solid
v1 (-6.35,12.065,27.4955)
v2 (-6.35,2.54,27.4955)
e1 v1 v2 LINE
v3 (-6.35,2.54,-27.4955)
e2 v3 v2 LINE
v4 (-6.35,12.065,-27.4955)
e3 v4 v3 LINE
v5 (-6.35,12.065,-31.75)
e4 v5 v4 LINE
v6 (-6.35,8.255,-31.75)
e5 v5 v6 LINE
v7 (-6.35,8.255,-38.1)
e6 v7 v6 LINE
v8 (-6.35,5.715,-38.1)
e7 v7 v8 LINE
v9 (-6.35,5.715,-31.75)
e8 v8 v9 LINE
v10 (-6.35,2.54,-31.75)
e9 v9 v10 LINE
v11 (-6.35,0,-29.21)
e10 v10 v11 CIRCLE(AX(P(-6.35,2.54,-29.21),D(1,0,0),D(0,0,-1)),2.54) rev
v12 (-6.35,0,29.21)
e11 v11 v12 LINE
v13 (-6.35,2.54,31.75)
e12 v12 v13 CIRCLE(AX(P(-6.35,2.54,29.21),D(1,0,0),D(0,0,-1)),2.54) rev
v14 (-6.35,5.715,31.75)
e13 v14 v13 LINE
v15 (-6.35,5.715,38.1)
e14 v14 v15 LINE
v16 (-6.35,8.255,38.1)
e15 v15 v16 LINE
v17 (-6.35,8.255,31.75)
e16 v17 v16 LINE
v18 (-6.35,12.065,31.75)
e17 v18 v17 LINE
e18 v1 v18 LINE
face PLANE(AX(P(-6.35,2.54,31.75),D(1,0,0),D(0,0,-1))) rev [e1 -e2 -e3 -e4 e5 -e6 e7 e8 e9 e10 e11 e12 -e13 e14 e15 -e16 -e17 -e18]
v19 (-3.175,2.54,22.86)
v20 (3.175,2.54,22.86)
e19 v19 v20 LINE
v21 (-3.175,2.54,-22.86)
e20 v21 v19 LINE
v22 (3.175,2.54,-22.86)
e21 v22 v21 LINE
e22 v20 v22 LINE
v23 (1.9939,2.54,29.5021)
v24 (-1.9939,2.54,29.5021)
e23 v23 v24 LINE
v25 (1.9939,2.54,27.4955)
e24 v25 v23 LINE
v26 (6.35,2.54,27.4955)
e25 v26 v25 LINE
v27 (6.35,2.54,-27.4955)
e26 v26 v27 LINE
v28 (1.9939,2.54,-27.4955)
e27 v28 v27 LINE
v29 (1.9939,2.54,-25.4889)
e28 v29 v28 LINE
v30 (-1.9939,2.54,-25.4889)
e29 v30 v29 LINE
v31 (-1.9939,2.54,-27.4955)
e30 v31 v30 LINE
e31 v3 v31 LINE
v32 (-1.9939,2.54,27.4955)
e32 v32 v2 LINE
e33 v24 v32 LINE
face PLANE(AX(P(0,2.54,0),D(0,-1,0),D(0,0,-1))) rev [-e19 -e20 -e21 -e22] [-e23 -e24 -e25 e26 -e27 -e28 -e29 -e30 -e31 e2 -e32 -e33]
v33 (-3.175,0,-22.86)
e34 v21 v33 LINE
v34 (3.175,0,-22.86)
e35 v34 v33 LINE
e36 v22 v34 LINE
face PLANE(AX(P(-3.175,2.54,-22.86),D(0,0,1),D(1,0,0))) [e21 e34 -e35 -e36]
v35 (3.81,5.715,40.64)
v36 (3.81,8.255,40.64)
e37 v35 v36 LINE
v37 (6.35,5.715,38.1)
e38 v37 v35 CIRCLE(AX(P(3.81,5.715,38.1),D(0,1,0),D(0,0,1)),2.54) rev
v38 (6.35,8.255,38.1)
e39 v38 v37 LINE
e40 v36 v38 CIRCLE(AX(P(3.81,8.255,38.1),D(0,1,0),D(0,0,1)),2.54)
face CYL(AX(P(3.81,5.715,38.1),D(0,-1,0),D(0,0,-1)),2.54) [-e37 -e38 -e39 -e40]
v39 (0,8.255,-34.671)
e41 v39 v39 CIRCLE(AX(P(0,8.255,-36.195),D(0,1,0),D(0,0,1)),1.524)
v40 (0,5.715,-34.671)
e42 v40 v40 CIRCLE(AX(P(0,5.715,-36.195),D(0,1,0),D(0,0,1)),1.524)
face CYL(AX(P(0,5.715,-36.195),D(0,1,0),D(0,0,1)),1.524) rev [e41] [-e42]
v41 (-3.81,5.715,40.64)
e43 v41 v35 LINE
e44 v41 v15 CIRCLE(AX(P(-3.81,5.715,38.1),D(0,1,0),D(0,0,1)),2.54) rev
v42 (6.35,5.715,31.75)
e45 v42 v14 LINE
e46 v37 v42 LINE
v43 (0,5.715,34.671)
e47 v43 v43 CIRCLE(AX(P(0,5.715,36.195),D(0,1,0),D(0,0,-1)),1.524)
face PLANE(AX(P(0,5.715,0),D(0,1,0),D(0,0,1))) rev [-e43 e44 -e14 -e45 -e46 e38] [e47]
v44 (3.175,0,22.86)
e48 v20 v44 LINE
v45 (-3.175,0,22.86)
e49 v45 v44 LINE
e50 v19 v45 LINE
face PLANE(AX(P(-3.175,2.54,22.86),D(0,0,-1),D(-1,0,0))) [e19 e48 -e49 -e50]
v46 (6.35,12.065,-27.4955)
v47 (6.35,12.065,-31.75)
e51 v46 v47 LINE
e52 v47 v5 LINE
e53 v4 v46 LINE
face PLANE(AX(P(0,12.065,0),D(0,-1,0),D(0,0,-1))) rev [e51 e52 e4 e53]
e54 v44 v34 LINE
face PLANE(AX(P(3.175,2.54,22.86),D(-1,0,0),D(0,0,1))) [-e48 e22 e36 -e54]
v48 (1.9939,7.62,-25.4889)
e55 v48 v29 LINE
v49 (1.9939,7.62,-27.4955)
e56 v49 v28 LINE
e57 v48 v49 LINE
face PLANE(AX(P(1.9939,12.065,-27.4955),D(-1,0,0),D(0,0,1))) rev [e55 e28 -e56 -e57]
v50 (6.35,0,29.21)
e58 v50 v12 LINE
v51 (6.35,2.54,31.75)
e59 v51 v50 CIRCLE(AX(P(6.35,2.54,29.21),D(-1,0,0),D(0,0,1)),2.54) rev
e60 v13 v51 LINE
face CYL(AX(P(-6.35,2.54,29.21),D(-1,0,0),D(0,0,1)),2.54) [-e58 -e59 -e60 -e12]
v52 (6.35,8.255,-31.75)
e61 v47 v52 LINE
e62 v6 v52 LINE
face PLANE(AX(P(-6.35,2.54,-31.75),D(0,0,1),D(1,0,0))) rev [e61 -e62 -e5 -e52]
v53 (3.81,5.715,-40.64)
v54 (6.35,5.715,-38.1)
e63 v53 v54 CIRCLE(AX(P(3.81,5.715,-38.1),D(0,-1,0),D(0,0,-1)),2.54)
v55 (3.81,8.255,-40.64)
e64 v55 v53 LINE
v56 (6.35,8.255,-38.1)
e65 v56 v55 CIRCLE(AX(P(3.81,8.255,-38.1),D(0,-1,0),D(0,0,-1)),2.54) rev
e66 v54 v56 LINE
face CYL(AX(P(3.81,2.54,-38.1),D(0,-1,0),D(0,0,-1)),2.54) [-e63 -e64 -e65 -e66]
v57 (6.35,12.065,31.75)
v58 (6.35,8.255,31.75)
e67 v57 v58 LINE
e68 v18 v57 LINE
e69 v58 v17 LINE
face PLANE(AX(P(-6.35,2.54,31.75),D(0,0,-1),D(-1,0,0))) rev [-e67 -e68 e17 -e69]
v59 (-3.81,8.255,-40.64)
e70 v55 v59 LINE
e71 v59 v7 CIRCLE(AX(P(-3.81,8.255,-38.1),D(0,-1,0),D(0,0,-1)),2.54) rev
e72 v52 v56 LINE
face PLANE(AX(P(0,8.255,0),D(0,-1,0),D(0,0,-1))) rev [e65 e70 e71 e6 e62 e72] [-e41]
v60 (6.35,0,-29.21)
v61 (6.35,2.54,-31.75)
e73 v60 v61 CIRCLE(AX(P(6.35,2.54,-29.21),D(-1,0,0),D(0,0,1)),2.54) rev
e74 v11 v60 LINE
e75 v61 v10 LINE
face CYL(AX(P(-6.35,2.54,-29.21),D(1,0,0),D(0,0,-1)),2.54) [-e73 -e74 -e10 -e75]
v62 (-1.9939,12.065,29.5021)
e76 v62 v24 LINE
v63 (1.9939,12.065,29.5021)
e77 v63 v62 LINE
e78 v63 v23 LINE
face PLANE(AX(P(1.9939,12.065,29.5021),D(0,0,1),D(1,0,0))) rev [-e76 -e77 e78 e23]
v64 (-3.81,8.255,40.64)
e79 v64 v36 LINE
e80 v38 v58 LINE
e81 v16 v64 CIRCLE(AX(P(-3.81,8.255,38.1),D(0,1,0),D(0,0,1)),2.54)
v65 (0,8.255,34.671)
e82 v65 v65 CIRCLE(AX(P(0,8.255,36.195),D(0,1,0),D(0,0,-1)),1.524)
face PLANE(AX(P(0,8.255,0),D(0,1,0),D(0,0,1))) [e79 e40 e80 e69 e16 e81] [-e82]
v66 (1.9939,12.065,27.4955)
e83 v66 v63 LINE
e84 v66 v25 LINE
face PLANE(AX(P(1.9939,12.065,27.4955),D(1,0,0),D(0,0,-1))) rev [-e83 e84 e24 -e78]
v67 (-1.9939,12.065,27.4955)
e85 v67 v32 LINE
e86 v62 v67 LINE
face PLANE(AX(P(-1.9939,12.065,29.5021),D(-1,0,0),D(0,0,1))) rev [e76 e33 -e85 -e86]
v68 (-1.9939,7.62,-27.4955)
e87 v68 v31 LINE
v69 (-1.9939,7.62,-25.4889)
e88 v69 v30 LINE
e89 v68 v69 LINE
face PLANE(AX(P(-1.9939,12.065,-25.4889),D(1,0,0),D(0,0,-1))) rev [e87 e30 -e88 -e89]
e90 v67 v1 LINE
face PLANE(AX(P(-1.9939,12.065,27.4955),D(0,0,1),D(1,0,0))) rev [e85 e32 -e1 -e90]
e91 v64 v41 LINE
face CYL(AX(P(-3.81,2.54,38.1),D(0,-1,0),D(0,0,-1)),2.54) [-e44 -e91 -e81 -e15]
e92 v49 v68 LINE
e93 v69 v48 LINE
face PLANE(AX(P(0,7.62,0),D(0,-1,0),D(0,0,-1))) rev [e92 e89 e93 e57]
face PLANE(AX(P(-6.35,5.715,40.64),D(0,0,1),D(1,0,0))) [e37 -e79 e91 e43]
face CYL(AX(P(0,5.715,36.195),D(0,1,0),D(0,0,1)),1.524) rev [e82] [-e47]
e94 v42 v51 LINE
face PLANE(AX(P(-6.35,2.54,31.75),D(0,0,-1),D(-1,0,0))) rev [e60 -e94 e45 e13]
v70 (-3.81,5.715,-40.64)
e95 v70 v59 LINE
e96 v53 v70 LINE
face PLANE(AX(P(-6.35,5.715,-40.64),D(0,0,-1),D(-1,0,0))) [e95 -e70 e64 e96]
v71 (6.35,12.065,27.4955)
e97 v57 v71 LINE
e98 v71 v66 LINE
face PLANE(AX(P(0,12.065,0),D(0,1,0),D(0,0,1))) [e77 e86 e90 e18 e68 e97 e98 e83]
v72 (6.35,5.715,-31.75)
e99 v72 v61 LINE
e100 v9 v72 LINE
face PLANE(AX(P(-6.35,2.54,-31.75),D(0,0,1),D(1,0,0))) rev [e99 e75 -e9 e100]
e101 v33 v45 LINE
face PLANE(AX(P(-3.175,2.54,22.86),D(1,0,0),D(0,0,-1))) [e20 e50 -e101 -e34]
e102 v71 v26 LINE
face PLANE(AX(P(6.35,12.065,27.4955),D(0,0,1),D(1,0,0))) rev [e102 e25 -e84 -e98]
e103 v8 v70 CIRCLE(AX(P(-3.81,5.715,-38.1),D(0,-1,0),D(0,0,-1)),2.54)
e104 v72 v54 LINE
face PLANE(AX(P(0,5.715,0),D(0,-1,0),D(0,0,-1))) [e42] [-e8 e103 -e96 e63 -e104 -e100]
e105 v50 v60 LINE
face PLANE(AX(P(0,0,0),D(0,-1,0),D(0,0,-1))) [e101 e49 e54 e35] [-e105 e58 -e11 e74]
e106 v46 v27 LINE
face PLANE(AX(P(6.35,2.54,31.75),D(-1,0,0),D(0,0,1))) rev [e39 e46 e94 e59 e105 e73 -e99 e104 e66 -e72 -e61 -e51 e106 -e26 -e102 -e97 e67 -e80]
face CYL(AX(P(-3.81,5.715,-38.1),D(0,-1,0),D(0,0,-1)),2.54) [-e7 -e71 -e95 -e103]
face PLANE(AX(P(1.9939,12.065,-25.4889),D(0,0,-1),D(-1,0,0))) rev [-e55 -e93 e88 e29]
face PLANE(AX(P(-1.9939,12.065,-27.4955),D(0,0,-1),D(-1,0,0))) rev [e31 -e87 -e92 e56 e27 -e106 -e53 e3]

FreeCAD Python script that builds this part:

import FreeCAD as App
import Part
import Sketcher
from FreeCAD import Vector
Q = App.Units.Quantity


def edges_at(feature, points):
    """Names of the edges that pass closest to the given points."""
    edges = feature.Shape.Edges
    near = lambda p: min(range(len(edges)), key=lambda i: edges[i].distToShape(Part.Vertex(*p))[0])
    return sorted({f"Edge{near(p) + 1}" for p in points})

doc = App.newDocument("Part")
params = doc.addObject("Spreadsheet::Sheet", "Params")
for row, (alias, value) in enumerate([
    ("sketch1_width", "0.5 in"),
    ("sketch1_height", "2.5 in"),
    ("sketch1_height2", "1.8 in"),
    ("sketch1_width2", "0.25 in"),
    ("pad1_length", "0.1 in"),
    ("sketch2_width", "0.5 in"),
    ("sketch2_width2", "0.157 in"),
    ("sketch2_height", "0.079 in"),
    ("pad2_length", "0.375 in"),
    ("sketch3_width", "0.157 in"),
    ("sketch3_height", "0.079 in"),
    ("pocket1_length", "0.175 in"),
    ("sketch4_diameter", "0.12 in"),
    ("sketch4_width", "0.5 in"),
    ("sketch4_height", "0.35 in"),
    ("pad3_length", "0.1 in"),
    ("fillet_radius", "0.1 in"),
], start=1):
    params.set(f"A{row}", alias)
    params.set(f"B{row}", "=" + value)
    params.setAlias(f"B{row}", alias)

body = doc.addObject("PartDesign::Body", "Body")

sketch1 = doc.addObject("Sketcher::SketchObject", "Sketch")
body.addObject(sketch1)
sketch1.AttachmentSupport = (doc.XZ_Plane, [""])
sketch1.MapMode = "FlatFace"
sketch1.addGeometry([
    Part.LineSegment(Vector(-6, -32, 0), Vector(-6, 32, 0)),
    Part.LineSegment(Vector(-6, 32, 0), Vector(6, 32, 0)),
    Part.LineSegment(Vector(6, 32, 0), Vector(6, -32, 0)),
    Part.LineSegment(Vector(6, -32, 0), Vector(-6, -32, 0)),
    Part.LineSegment(Vector(3, 23, 0), Vector(-3, 23, 0)),
    Part.LineSegment(Vector(-3, 23, 0), Vector(-3, -23, 0)),
    Part.LineSegment(Vector(-3, -23, 0), Vector(3, -23, 0)),
    Part.LineSegment(Vector(3, -23, 0), Vector(3, 23, 0)),
], False)
sketch1.addConstraint([
    Sketcher.Constraint("Coincident", 0, 2, 1, 1),
    Sketcher.Constraint("Coincident", 1, 2, 2, 1),
    Sketcher.Constraint("Coincident", 2, 2, 3, 1),
    Sketcher.Constraint("Coincident", 3, 2, 0, 1),
    Sketcher.Constraint("Coincident", 4, 2, 5, 1),
    Sketcher.Constraint("Coincident", 5, 2, 6, 1),
    Sketcher.Constraint("Coincident", 6, 2, 7, 1),
    Sketcher.Constraint("Coincident", 7, 2, 4, 1),
    Sketcher.Constraint("Vertical", 0),
    Sketcher.Constraint("Horizontal", 1),
    Sketcher.Constraint("Vertical", 2),
    Sketcher.Constraint("Horizontal", 3),
    Sketcher.Constraint("Horizontal", 4),
    Sketcher.Constraint("Vertical", 5),
    Sketcher.Constraint("Horizontal", 6),
    Sketcher.Constraint("Vertical", 7),
    Sketcher.Constraint("Symmetric", 0, 2, 2, 2, -1, 1),
    Sketcher.Constraint("Symmetric", 4, 2, 6, 2, -1, 1),
    Sketcher.Constraint("DistanceX", 1, 1, 1, 2, Q("0.5 in")),
    Sketcher.Constraint("DistanceY", 0, 1, 0, 2, Q("2.5 in")),
    Sketcher.Constraint("DistanceY", 5, 2, 5, 1, Q("1.8 in")),
    Sketcher.Constraint("DistanceX", 4, 2, 4, 1, Q("0.25 in")),
])
sketch1.setExpression("Constraints[18]", "Params.sketch1_width")
sketch1.setExpression("Constraints[19]", "Params.sketch1_height")
sketch1.setExpression("Constraints[20]", "Params.sketch1_height2")
sketch1.setExpression("Constraints[21]", "Params.sketch1_width2")
pad1 = doc.addObject("PartDesign::Pad", "Pad")
body.addObject(pad1)
pad1.Profile = sketch1
pad1.setExpression("Length", "Params.pad1_length")
pad1.Reversed = True

sketch2 = doc.addObject("Sketcher::SketchObject", "Sketch001")
body.addObject(sketch2)
sketch2.AttachmentSupport = (doc.XZ_Plane, [""])
sketch2.MapMode = "FlatFace"
sketch2.AttachmentOffset = App.Placement(Vector(0, 0, -0.1 * 25.4), App.Rotation())
sketch2.addGeometry([
    Part.LineSegment(Vector(6.3, -31.8, 0), Vector(-6.3, -31.8, 0)),
    Part.LineSegment(Vector(-6.3, -31.8, 0), Vector(-6.3, -27.5, 0)),
    Part.LineSegment(Vector(-6.3, -27.5, 0), Vector(-2, -27.5, 0)),
    Part.LineSegment(Vector(-2, -27.5, 0), Vector(-2, -25.5, 0)),
    Part.LineSegment(Vector(-2, -25.5, 0), Vector(2, -25.5, 0)),
    Part.LineSegment(Vector(2, -25.5, 0), Vector(2, -27.5, 0)),
    Part.LineSegment(Vector(2, -27.5, 0), Vector(6.3, -27.5, 0)),
    Part.LineSegment(Vector(6.3, -27.5, 0), Vector(6.3, -31.8, 0)),
    Part.LineSegment(Vector(-6.3, 27.5, 0), Vector(-6.3, 31.8, 0)),
    Part.LineSegment(Vector(-6.3, 31.8, 0), Vector(6.3, 31.8, 0)),
    Part.LineSegment(Vector(6.3, 31.8, 0), Vector(6.3, 27.5, 0)),
    Part.LineSegment(Vector(6.3, 27.5, 0), Vector(2, 27.5, 0)),
    Part.LineSegment(Vector(2, 27.5, 0), Vector(2, 29.5, 0)),
    Part.LineSegment(Vector(2, 29.5, 0), Vector(-2, 29.5, 0)),
    Part.LineSegment(Vector(-2, 29.5, 0), Vector(-2, 27.5, 0)),
    Part.LineSegment(Vector(-2, 27.5, 0), Vector(-6.3, 27.5, 0)),
], False)
sketch2.addConstraint([
    Sketcher.Constraint("Coincident", 0, 2, 1, 1),
    Sketcher.Constraint("Coincident", 1, 2, 2, 1),
    Sketcher.Constraint("Coincident", 2, 2, 3, 1),
    Sketcher.Constraint("Coincident", 3, 2, 4, 1),
    Sketcher.Constraint("Coincident", 4, 2, 5, 1),
    Sketcher.Constraint("Coincident", 5, 2, 6, 1),
    Sketcher.Constraint("Coincident", 6, 2, 7, 1),
    Sketcher.Constraint("Coincident", 7, 2, 0, 1),
    Sketcher.Constraint("Coincident", 8, 2, 9, 1),
    Sketcher.Constraint("Coincident", 9, 2, 10, 1),
    Sketcher.Constraint("Coincident", 10, 2, 11, 1),
    Sketcher.Constraint("Coincident", 11, 2, 12, 1),
    Sketcher.Constraint("Coincident", 12, 2, 13, 1),
    Sketcher.Constraint("Coincident", 13, 2, 14, 1),
    Sketcher.Constraint("Coincident", 14, 2, 15, 1),
    Sketcher.Constraint("Coincident", 15, 2, 8, 1),
    Sketcher.Constraint("Horizontal", 0),
    Sketcher.Constraint("Vertical", 1),
    Sketcher.Constraint("Horizontal", 2),
    Sketcher.Constraint("Vertical", 3),
    Sketcher.Constraint("Horizontal", 4),
    Sketcher.Constraint("Vertical", 5),
    Sketcher.Constraint("Horizontal", 6),
    Sketcher.Constraint("Vertical", 7),
    Sketcher.Constraint("Vertical", 8),
    Sketcher.Constraint("Horizontal", 9),
    Sketcher.Constraint("Vertical", 10),
    Sketcher.Constraint("Horizontal", 11),
    Sketcher.Constraint("Vertical", 12),
    Sketcher.Constraint("Horizontal", 13),
    Sketcher.Constraint("Vertical", 14),
    Sketcher.Constraint("Horizontal", 15),
    Sketcher.Constraint("Symmetric", 7, 2, 8, 2, -1, 1),
    Sketcher.Constraint("Symmetric", 1, 2, 10, 2, -1, 1),
    Sketcher.Constraint("Symmetric", 5, 2, 14, 2, -1, 1),
    Sketcher.Constraint("Symmetric", 2, 2, 5, 2, -2),
    Sketcher.Constraint("Vertical", 1, 2, 8, 2),
    Sketcher.Constraint("Vertical", 5, 2, 11, 2),
    Sketcher.Constraint("Equal", 5, 12),
    Sketcher.Constraint("DistanceX", 0, 2, 0, 1, Q("0.5 in")),
    Sketcher.Constraint("DistanceX", 4, 1, 4, 2, Q("0.157 in")),
    Sketcher.Constraint("DistanceY", 3, 1, 3, 2, Q("0.079 in")),
    Sketcher.Constraint("DistanceY", 0, 2, -1, 1, Q("1.25 in")),
    Sketcher.Constraint("DistanceY", 1, 1, 1, 2, Q("0.1675 in")),
])
sketch2.setExpression("Constraints[39]", "Params.sketch2_width")
sketch2.setExpression("Constraints[40]", "Params.sketch2_width2")
sketch2.setExpression("Constraints[41]", "Params.sketch2_height")
pad2 = doc.addObject("PartDesign::Pad", "Pad001")
body.addObject(pad2)
pad2.Profile = sketch2
pad2.setExpression("Length", "Params.pad2_length")
pad2.Reversed = True

sketch3 = doc.addObject("Sketcher::SketchObject", "Sketch002")
body.addObject(sketch3)
sketch3.AttachmentSupport = (doc.XZ_Plane, [""])
sketch3.MapMode = "FlatFace"
sketch3.AttachmentOffset = App.Placement(Vector(0, 0, -0.475 * 25.4), App.Rotation())
sketch3.addGeometry([
    Part.LineSegment(Vector(-2, -27.5, 0), Vector(-2, -25.5, 0)),
    Part.LineSegment(Vector(-2, -25.5, 0), Vector(2, -25.5, 0)),
    Part.LineSegment(Vector(2, -25.5, 0), Vector(2, -27.5, 0)),
    Part.LineSegment(Vector(2, -27.5, 0), Vector(-2, -27.5, 0)),
], False)
sketch3.addConstraint([
    Sketcher.Constraint("Coincident", 0, 2, 1, 1),
    Sketcher.Constraint("Coincident", 1, 2, 2, 1),
    Sketcher.Constraint("Coincident", 2, 2, 3, 1),
    Sketcher.Constraint("Coincident", 3, 2, 0, 1),
    Sketcher.Constraint("Vertical", 0),
    Sketcher.Constraint("Horizontal", 1),
    Sketcher.Constraint("Vertical", 2),
    Sketcher.Constraint("Horizontal", 3),
    Sketcher.Constraint("DistanceX", 1, 1, 1, 2, Q("0.157 in")),
    Sketcher.Constraint("DistanceY", 0, 1, 0, 2, Q("0.079 in")),
    Sketcher.Constraint("DistanceX", 0, 2, -1, 1, Q("0.0785 in")),
    Sketcher.Constraint("DistanceY", 0, 2, -1, 1, Q("1.0035 in")),
])
sketch3.setExpression("Constraints[8]", "Params.sketch3_width")
sketch3.setExpression("Constraints[9]", "Params.sketch3_height")
pocket1 = doc.addObject("PartDesign::Pocket", "Pocket")
body.addObject(pocket1)
pocket1.Profile = sketch3
pocket1.setExpression("Length", "Params.pocket1_length")
pocket1.Reversed = True

sketch4 = doc.addObject("Sketcher::SketchObject", "Sketch003")
body.addObject(sketch4)
sketch4.AttachmentSupport = (doc.XZ_Plane, [""])
sketch4.MapMode = "FlatFace"
sketch4.AttachmentOffset = App.Placement(Vector(0, 0, -0.325 * 25.4), App.Rotation())
sketch4.addGeometry([
    Part.LineSegment(Vector(-6.3, -40.6, 0), Vector(-6.3, -31.8, 0)),
    Part.LineSegment(Vector(-6.3, -31.8, 0), Vector(6.3, -31.8, 0)),
    Part.LineSegment(Vector(6.3, -31.8, 0), Vector(6.3, -40.6, 0)),
    Part.LineSegment(Vector(6.3, -40.6, 0), Vector(-6.3, -40.6, 0)),
    Part.Circle(Vector(0, -36.2, 0), Vector(0, 0, 1), 1.5),
    Part.LineSegment(Vector(-6.3, 31.8, 0), Vector(-6.3, 40.6, 0)),
    Part.LineSegment(Vector(-6.3, 40.6, 0), Vector(6.3, 40.6, 0)),
    Part.LineSegment(Vector(6.3, 40.6, 0), Vector(6.3, 31.8, 0)),
    Part.LineSegment(Vector(6.3, 31.8, 0), Vector(-6.3, 31.8, 0)),
    Part.Circle(Vector(0, 36.2, 0), Vector(0, 0, 1), 1.5),
], False)
sketch4.addConstraint([
    Sketcher.Constraint("Coincident", 0, 2, 1, 1),
    Sketcher.Constraint("Coincident", 1, 2, 2, 1),
    Sketcher.Constraint("Coincident", 2, 2, 3, 1),
    Sketcher.Constraint("Coincident", 3, 2, 0, 1),
    Sketcher.Constraint("Coincident", 5, 2, 6, 1),
    Sketcher.Constraint("Coincident", 6, 2, 7, 1),
    Sketcher.Constraint("Coincident", 7, 2, 8, 1),
    Sketcher.Constraint("Coincident", 8, 2, 5, 1),
    Sketcher.Constraint("Vertical", 0),
    Sketcher.Constraint("Horizontal", 1),
    Sketcher.Constraint("Vertical", 2),
    Sketcher.Constraint("Horizontal", 3),
    Sketcher.Constraint("Vertical", 5),
    Sketcher.Constraint("Horizontal", 6),
    Sketcher.Constraint("Vertical", 7),
    Sketcher.Constraint("Horizontal", 8),
    Sketcher.Constraint("Equal", 4, 9),
    Sketcher.Constraint("Symmetric", 4, 3, 9, 3, -1, 1),
    Sketcher.Constraint("Symmetric", 2, 2, 5, 2, -1, 1),
    Sketcher.Constraint("Symmetric", 0, 2, 7, 2, -1, 1),
    Sketcher.Constraint("PointOnObject", 4, 3, -2),
    Sketcher.Constraint("Vertical", 3, 2, 5, 2),
    Sketcher.Constraint("Diameter", 4, Q("0.12 in")),
    Sketcher.Constraint("DistanceX", 1, 1, 1, 2, Q("0.5 in")),
    Sketcher.Constraint("DistanceY", 0, 1, 0, 2, Q("0.35 in")),
    Sketcher.Constraint("DistanceY", 2, 2, -1, 1, Q("1.6 in")),
    Sketcher.Constraint("DistanceY", 4, 3, 9, 3, Q("2.85 in")),
])
sketch4.setExpression("Constraints[22]", "Params.sketch4_diameter")
sketch4.setExpression("Constraints[23]", "Params.sketch4_width")
sketch4.setExpression("Constraints[24]", "Params.sketch4_height")
pad3 = doc.addObject("PartDesign::Pad", "Pad002")
body.addObject(pad3)
pad3.Profile = sketch4
pad3.setExpression("Length", "Params.pad3_length")
doc.recompute()

fillet = doc.addObject("PartDesign::Fillet", "Fillet")
body.addObject(fillet)
fillet.Base = (pad3, edges_at(pad3, [
    (6.35, 6.985, 40.64),
    (-6.35, 6.985, 40.64),
    (0, 0, 31.75),
    (0, 0, -31.75),
    (6.35, 6.985, -40.64),
    (-6.35, 6.985, -40.64),
]))
fillet.setExpression("Radius", "Params.fillet_radius")

doc.recompute()
